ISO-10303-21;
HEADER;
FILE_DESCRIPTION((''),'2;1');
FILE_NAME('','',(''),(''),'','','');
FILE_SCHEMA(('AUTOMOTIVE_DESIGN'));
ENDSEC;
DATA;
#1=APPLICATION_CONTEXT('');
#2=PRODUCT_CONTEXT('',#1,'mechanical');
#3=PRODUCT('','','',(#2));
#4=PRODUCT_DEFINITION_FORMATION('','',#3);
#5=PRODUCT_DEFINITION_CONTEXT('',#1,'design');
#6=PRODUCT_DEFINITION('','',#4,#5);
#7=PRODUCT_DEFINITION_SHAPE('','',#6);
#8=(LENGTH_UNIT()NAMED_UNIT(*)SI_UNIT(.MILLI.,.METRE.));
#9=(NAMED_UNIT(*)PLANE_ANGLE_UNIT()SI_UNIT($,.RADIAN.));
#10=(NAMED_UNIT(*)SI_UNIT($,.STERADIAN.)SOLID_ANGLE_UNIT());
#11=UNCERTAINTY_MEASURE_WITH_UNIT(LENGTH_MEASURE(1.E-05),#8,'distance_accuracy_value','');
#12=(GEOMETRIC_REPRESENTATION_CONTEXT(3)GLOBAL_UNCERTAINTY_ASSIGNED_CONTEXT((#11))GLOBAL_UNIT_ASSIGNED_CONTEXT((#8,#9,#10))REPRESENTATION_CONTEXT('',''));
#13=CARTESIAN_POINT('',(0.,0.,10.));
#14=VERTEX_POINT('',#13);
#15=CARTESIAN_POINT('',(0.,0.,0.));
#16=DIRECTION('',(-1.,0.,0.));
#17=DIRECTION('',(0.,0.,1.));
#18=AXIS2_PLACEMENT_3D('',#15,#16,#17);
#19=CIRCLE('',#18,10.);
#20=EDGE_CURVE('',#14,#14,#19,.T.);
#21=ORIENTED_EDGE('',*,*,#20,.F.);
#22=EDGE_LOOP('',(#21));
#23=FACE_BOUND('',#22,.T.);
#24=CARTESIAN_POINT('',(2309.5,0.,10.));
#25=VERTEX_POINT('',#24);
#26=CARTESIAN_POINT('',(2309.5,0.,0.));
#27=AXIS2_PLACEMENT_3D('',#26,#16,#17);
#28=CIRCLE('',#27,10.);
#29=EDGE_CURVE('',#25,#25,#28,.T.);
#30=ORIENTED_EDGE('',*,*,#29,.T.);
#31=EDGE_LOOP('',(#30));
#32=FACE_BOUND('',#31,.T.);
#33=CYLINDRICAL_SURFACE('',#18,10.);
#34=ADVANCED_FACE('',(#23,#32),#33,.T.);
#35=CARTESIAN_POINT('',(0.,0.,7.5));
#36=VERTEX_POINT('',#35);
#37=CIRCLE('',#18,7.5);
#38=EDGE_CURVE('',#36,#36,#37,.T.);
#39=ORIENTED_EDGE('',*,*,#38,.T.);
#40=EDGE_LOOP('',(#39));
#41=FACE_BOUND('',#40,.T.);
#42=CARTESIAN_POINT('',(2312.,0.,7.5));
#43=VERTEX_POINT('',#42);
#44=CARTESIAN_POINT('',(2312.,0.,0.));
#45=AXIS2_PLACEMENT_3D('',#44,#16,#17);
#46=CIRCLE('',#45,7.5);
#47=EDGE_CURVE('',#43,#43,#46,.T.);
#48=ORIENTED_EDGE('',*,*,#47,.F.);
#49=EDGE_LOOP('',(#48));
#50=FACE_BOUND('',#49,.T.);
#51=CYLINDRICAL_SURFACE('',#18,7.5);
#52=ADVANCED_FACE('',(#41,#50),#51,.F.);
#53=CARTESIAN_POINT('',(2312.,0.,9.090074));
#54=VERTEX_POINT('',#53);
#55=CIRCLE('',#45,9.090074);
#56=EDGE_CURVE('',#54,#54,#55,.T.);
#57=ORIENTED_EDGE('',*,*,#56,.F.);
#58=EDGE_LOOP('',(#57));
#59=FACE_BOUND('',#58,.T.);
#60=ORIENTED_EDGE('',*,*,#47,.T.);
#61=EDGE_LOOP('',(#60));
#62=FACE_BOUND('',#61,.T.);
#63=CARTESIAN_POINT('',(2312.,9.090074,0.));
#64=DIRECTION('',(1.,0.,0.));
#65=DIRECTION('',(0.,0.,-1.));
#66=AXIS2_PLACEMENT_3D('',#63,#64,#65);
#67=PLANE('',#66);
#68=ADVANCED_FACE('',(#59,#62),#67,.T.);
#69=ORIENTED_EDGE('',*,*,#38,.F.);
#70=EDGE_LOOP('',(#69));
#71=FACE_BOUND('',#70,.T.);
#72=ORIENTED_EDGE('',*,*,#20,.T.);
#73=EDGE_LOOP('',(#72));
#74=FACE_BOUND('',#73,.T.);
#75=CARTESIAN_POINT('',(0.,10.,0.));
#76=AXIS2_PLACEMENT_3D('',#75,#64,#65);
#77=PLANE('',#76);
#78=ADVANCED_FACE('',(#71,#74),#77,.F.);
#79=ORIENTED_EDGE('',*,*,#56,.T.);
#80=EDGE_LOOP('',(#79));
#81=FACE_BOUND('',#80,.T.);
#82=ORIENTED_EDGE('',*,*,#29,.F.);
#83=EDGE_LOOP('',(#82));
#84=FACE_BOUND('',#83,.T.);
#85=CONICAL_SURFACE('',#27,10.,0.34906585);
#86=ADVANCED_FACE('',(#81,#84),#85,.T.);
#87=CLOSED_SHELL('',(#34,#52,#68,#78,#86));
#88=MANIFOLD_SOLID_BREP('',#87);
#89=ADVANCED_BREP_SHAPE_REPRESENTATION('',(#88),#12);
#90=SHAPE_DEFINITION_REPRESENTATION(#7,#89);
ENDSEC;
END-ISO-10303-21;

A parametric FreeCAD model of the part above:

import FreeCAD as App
import Part
import Sketcher
from FreeCAD import Vector
Q = App.Units.Quantity


def add_polygon(sketch, points):
    """Adds a closed chain of lines whose ends are joined by coincident constraints."""
    first, n = sketch.GeometryCount, len(points)
    for a, b in zip(points, points[1:] + points[:1]):
        sketch.addGeometry(Part.LineSegment(App.Vector(*a, 0), App.Vector(*b, 0)), False)
    for i in range(n):
        sketch.addConstraint(Sketcher.Constraint("Coincident", first + i, 2, first + (i + 1) % n, 1))

doc = App.newDocument("Part")
body = doc.addObject("PartDesign::Body", "Body")

# Sketch on XY plane
sketch1 = body.newObject("Sketcher::SketchObject", "Sketch")
sketch1.AttachmentSupport = (doc.getObject("XY_Plane"), [""])
sketch1.MapMode = "FlatFace"
add_polygon(sketch1, [(0, 10), (0, 7.5), (2312, 7.5), (2312, 9.090074), (2309.5, 10)])  # lines 0-4
sketch1.addConstraint(Sketcher.Constraint("Vertical", 0))
sketch1.addConstraint(Sketcher.Constraint("Horizontal", 1))
sketch1.addConstraint(Sketcher.Constraint("Vertical", 2))
sketch1.addConstraint(Sketcher.Constraint("Horizontal", 4))
sketch1.addConstraint(Sketcher.Constraint("PointOnObject", 0, 2, -2))
sketch1.addConstraint(Sketcher.Constraint("DistanceX", 1, 1, 1, 2, 2312.0))
sketch1.addConstraint(Sketcher.Constraint("Angle", 3, Q("160 deg")))
sketch1.addConstraint(Sketcher.Constraint("DistanceX", 4, 2, 4, 1, 2309.5))
sketch1.addConstraint(Sketcher.Constraint("DistanceY", 0, 2, 0, 1, 2.5))
sketch1.addConstraint(Sketcher.Constraint("DistanceY", -1, 1, 3, 2, 10.0))
revolution = body.newObject("PartDesign::Revolution", "Revolution")
revolution.Profile = sketch1
revolution.ReferenceAxis = (sketch1, ["H_Axis"])
revolution.Angle = 360

doc.recompute()
